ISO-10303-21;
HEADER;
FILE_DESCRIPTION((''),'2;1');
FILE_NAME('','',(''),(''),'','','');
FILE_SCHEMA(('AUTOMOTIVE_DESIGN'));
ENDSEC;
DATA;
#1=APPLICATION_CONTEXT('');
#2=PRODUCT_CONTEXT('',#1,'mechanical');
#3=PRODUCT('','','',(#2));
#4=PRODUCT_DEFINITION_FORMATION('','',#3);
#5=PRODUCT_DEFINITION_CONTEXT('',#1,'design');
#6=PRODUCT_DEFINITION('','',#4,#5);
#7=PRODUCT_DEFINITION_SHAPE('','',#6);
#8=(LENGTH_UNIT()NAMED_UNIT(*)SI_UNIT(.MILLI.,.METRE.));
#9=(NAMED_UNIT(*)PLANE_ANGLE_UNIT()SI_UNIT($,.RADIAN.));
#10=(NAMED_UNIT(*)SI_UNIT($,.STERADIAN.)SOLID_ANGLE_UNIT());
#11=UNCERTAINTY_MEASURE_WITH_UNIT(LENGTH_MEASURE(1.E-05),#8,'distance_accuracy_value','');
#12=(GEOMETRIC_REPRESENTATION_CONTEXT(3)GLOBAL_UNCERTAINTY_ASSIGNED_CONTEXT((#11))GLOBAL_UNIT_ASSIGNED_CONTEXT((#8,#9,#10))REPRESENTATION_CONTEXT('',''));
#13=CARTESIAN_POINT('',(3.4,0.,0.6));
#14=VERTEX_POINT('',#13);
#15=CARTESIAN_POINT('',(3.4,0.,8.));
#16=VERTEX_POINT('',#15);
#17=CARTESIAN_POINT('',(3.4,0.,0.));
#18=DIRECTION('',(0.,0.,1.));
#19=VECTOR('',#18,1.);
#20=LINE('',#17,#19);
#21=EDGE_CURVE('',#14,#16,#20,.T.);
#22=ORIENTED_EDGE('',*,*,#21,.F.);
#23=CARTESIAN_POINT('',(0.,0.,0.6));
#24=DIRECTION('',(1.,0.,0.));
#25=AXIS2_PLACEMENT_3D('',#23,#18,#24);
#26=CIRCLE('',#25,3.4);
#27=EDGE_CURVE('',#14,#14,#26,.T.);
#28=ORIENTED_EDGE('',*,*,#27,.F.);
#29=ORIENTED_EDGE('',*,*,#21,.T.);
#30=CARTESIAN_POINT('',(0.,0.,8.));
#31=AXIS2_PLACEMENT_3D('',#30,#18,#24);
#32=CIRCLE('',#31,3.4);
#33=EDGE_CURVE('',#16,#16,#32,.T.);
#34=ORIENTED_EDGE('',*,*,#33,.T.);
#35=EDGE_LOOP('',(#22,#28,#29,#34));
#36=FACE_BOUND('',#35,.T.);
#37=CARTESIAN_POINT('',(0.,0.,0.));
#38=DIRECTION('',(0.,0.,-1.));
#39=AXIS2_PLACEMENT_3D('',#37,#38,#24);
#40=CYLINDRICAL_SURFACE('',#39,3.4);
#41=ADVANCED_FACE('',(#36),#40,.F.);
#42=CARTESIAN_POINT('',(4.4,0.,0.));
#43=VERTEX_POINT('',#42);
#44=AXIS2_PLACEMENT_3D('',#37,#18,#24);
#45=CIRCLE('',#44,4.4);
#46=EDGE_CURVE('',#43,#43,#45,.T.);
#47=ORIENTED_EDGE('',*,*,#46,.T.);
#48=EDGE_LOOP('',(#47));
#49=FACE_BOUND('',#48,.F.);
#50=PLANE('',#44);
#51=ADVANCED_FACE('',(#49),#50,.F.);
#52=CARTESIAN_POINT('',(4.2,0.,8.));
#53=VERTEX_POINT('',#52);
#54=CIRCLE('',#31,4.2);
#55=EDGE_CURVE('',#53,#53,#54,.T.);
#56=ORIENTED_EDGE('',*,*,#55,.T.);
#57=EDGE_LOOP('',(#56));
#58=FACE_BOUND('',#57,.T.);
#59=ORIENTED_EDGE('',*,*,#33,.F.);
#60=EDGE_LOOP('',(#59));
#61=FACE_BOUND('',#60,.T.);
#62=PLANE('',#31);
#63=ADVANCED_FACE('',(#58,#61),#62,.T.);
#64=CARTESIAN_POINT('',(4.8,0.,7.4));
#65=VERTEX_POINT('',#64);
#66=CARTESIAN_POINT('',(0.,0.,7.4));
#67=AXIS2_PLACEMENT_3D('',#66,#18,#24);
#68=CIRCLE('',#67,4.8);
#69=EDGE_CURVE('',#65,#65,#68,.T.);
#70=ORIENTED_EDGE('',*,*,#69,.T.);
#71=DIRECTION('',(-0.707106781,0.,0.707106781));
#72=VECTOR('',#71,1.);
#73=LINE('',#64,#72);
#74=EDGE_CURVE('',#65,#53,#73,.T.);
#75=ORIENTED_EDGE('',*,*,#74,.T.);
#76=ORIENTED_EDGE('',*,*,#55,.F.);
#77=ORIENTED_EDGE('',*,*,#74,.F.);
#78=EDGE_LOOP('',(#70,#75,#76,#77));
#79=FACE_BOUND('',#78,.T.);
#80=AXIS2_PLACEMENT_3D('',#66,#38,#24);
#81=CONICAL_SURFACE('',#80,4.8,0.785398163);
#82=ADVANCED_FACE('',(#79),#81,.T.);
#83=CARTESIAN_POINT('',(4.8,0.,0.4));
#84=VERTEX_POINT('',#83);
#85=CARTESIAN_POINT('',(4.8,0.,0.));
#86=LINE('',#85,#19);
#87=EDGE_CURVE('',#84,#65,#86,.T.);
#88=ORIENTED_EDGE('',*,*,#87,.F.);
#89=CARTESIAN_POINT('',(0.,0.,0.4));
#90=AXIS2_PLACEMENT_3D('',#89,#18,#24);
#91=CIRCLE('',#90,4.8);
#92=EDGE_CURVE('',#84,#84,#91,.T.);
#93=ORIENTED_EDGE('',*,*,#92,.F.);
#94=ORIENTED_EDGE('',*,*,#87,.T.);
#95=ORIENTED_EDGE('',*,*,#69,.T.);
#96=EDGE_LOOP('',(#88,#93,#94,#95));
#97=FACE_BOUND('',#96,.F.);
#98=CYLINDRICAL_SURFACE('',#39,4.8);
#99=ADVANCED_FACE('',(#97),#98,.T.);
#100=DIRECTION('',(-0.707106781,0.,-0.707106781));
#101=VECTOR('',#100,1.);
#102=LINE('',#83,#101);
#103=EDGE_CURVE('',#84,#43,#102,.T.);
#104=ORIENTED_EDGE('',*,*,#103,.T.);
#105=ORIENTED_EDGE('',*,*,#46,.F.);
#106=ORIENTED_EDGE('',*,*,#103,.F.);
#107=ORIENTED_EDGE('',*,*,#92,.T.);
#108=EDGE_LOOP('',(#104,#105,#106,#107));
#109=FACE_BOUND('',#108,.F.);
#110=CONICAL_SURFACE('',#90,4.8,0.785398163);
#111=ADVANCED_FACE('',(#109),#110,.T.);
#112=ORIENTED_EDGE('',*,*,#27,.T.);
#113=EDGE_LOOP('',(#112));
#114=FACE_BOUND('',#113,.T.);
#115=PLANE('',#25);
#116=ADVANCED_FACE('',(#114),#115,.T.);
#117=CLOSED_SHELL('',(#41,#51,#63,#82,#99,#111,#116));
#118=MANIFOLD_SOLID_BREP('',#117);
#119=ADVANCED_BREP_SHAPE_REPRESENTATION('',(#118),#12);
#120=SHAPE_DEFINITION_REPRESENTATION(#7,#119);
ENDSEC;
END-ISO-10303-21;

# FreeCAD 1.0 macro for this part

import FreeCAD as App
import Part
import Sketcher
from FreeCAD import Vector


def edges_at(feature, points):
    """Names of the edges that pass closest to the given points."""
    edges = feature.Shape.Edges
    near = lambda p: min(range(len(edges)), key=lambda i: edges[i].distToShape(Part.Vertex(*p))[0])
    return sorted({f"Edge{near(p) + 1}" for p in points})

doc = App.newDocument("Part")
body = doc.addObject("PartDesign::Body", "Body")

sketch1 = body.newObject("Sketcher::SketchObject", "Sketch")
sketch1.AttachmentSupport = (doc.getObject("XY_Plane"), [""])
sketch1.MapMode = "FlatFace"
sketch1.addGeometry(Part.Circle(Vector(0, 0, 0), Vector(0, 0, 1), 3.4), False)
sketch1.addConstraint(Sketcher.Constraint("Coincident", 0, 3, -1, 1))
sketch1.addConstraint(Sketcher.Constraint("Diameter", 0, 6.8))
pad1 = body.newObject("PartDesign::Pad", "Pad")
pad1.Profile = sketch1
pad1.Length = 0.6

sketch2 = body.newObject("Sketcher::SketchObject", "Sketch001")
sketch2.AttachmentSupport = (doc.getObject("XY_Plane"), [""])
sketch2.MapMode = "FlatFace"
sketch2.addGeometry(Part.Circle(Vector(0, 0, 0), Vector(0, 0, 1), 4.8), False)
sketch2.addGeometry(Part.Circle(Vector(0, 0, 0), Vector(0, 0, 1), 3.4), False)
sketch2.addConstraint(Sketcher.Constraint("Coincident", 0, 3, -1, 1))
sketch2.addConstraint(Sketcher.Constraint("Coincident", 1, 3, -1, 1))
sketch2.addConstraint(Sketcher.Constraint("Diameter", 0, 9.6))
sketch2.addConstraint(Sketcher.Constraint("Diameter", 1, 6.8))
pad2 = body.newObject("PartDesign::Pad", "Pad001")
pad2.Profile = sketch2
pad2.Length = 8
doc.recompute()

chamfer = body.newObject("PartDesign::Chamfer", "Chamfer")
chamfer.Base = (pad2, edges_at(pad2, [(-4.8, 0, 0)]))
chamfer.Size = 0.4
doc.recompute()

chamfer2 = body.newObject("PartDesign::Chamfer", "Chamfer001")
chamfer2.Base = (chamfer, edges_at(chamfer, [(-4.8, 0, 8)]))
chamfer2.Size = 0.6

doc.recompute()
